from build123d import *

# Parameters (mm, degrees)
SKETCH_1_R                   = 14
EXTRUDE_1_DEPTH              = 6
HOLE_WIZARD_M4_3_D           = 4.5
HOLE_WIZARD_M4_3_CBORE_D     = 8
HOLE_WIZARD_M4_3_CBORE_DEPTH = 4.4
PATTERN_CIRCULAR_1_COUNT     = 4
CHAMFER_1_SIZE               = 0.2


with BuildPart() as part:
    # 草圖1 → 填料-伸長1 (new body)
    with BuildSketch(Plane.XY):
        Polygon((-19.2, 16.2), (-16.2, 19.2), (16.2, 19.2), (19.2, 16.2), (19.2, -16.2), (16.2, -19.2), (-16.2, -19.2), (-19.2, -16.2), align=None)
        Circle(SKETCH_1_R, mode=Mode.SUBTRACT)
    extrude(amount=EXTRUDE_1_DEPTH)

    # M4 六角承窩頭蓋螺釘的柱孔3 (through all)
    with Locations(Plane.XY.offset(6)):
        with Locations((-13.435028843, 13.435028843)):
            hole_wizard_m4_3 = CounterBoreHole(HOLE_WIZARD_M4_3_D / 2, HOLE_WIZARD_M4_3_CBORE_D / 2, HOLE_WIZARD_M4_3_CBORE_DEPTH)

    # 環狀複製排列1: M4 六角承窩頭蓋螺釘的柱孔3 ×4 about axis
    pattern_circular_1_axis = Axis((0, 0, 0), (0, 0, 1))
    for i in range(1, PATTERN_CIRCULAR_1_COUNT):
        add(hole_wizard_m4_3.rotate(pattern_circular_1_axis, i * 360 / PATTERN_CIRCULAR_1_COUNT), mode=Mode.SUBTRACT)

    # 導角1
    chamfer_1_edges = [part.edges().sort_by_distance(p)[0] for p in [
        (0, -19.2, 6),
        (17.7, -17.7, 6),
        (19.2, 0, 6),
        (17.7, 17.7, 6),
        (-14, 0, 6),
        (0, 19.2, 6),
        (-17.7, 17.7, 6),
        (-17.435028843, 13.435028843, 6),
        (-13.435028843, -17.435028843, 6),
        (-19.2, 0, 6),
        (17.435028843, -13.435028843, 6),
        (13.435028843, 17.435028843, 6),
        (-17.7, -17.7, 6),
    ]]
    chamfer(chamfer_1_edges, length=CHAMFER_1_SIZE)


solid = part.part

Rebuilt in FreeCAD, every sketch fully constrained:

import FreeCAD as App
import Part
import Sketcher
Q = App.Units.Quantity


def edges_at(feature, points):
    """Names of the edges that pass closest to the given points."""
    edges = feature.Shape.Edges
    near = lambda p: min(range(len(edges)), key=lambda i: edges[i].distToShape(Part.Vertex(*p))[0])
    return sorted({f"Edge{near(p) + 1}" for p in points})


def add_polygon(sketch, points):
    """Adds a closed chain of lines whose ends are joined by coincident constraints."""
    first, n = sketch.GeometryCount, len(points)
    for a, b in zip(points, points[1:] + points[:1]):
        sketch.addGeometry(Part.LineSegment(App.Vector(*a, 0), App.Vector(*b, 0)), False)
    for i in range(n):
        sketch.addConstraint(Sketcher.Constraint("Coincident", first + i, 2, first + (i + 1) % n, 1))

doc = App.newDocument("Part")
body = doc.addObject("PartDesign::Body", "Body")

# Sketch on XY plane
sketch1 = body.newObject("Sketcher::SketchObject", "Sketch")
sketch1.AttachmentSupport = (doc.getObject("XY_Plane"), [""])
sketch1.MapMode = "FlatFace"
add_polygon(sketch1, [(-16.2, 19.2), (-19.2, 16.2), (-19.2, -16.2), (-16.2, -19.2), (16.2, -19.2), (19.2, -16.2), (19.2, 16.2), (16.2, 19.2)])  # lines 0-7
sketch1.addGeometry(Part.Circle(App.Vector(0, 0, 0), App.Vector(0, 0, 1), 14), False)  # 8
sketch1.addConstraint([
    Sketcher.Constraint("Vertical", 1),
    Sketcher.Constraint("Horizontal", 3),
    Sketcher.Constraint("Vertical", 5),
    Sketcher.Constraint("Horizontal", 7),
    Sketcher.Constraint("Coincident", 8, 3, -1, 1),
    Sketcher.Constraint("Symmetric", 0, 2, 4, 2, -1, 1),
    Sketcher.Constraint("Symmetric", 2, 2, 6, 2, -1, 1),
    Sketcher.Constraint("Perpendicular", 0, 2),
    Sketcher.Constraint("Perpendicular", 2, 4),
    Sketcher.Constraint("Perpendicular", 4, 6),
    Sketcher.Constraint("Horizontal", 1, 2, 4, 2),
    Sketcher.Constraint("Vertical", 3, 2, 6, 2),
    Sketcher.Constraint("Equal", 7, 1),
    Sketcher.Constraint("Diameter", 8, Q("28 mm")),
    Sketcher.Constraint("DistanceX", 3, 1, 3, 2, Q("32.4 mm")),
    Sketcher.Constraint("DistanceX", 1, 2, 2, 2, Q("3 mm")),
])
pad1 = body.newObject("PartDesign::Pad", "Pad")
pad1.Profile = sketch1
pad1.Length = 6

# Sketch on XY plane
sketch2 = body.newObject("Sketcher::SketchObject", "Sketch001")
sketch2.AttachmentSupport = (doc.getObject("XY_Plane"), [""])
sketch2.MapMode = "FlatFace"
sketch2.AttachmentOffset = App.Placement(App.Vector(0, 0, 6), App.Rotation())
sketch2.addGeometry(Part.Circle(App.Vector(-13.4, 13.4, 0), App.Vector(0, 0, 1), 2.2), False)
sketch2.addConstraint([
    Sketcher.Constraint("Diameter", 0, Q("4.5 mm")),
    Sketcher.Constraint("DistanceX", 0, 3, -1, 1, Q("13.435029 mm")),
    Sketcher.Constraint("DistanceY", -1, 1, 0, 3, Q("13.435029 mm")),
])
doc.recompute()
hole = body.newObject("PartDesign::Hole", "Hole")
hole.Profile = sketch2
hole.ThreadType = "None"
hole.Diameter = 4.5
hole.DepthType = "ThroughAll"
hole.HoleCutType = "Counterbore"
hole.HoleCutDiameter = 8
hole.HoleCutDepth = 4.4
doc.recompute()

polarpattern = body.newObject("PartDesign::PolarPattern", "PolarPattern")
polarpattern.Originals = [hole]
polarpattern.Axis = (doc.getObject("Z_Axis"), [""])
polarpattern.Angle = 360
polarpattern.Occurrences = 4
body.Tip = polarpattern
doc.recompute()

chamfer = body.newObject("PartDesign::Chamfer", "Chamfer")
chamfer.Base = (polarpattern, edges_at(polarpattern, [
    (0, -19.2, 6),
    (17.7, -17.7, 6),
    (19.2, 0, 6),
    (17.7, 17.7, 6),
    (-14, 0, 6),
    (0, 19.2, 6),
    (-17.7, 17.7, 6),
    (-17.435, 13.435, 6),
    (-13.435, -17.435, 6),
    (-19.2, 0, 6),
    (17.435, -13.435, 6),
    (13.435, 17.435, 6),
    (-17.7, -17.7, 6),
]))
chamfer.Size = 0.2

doc.recompute()
